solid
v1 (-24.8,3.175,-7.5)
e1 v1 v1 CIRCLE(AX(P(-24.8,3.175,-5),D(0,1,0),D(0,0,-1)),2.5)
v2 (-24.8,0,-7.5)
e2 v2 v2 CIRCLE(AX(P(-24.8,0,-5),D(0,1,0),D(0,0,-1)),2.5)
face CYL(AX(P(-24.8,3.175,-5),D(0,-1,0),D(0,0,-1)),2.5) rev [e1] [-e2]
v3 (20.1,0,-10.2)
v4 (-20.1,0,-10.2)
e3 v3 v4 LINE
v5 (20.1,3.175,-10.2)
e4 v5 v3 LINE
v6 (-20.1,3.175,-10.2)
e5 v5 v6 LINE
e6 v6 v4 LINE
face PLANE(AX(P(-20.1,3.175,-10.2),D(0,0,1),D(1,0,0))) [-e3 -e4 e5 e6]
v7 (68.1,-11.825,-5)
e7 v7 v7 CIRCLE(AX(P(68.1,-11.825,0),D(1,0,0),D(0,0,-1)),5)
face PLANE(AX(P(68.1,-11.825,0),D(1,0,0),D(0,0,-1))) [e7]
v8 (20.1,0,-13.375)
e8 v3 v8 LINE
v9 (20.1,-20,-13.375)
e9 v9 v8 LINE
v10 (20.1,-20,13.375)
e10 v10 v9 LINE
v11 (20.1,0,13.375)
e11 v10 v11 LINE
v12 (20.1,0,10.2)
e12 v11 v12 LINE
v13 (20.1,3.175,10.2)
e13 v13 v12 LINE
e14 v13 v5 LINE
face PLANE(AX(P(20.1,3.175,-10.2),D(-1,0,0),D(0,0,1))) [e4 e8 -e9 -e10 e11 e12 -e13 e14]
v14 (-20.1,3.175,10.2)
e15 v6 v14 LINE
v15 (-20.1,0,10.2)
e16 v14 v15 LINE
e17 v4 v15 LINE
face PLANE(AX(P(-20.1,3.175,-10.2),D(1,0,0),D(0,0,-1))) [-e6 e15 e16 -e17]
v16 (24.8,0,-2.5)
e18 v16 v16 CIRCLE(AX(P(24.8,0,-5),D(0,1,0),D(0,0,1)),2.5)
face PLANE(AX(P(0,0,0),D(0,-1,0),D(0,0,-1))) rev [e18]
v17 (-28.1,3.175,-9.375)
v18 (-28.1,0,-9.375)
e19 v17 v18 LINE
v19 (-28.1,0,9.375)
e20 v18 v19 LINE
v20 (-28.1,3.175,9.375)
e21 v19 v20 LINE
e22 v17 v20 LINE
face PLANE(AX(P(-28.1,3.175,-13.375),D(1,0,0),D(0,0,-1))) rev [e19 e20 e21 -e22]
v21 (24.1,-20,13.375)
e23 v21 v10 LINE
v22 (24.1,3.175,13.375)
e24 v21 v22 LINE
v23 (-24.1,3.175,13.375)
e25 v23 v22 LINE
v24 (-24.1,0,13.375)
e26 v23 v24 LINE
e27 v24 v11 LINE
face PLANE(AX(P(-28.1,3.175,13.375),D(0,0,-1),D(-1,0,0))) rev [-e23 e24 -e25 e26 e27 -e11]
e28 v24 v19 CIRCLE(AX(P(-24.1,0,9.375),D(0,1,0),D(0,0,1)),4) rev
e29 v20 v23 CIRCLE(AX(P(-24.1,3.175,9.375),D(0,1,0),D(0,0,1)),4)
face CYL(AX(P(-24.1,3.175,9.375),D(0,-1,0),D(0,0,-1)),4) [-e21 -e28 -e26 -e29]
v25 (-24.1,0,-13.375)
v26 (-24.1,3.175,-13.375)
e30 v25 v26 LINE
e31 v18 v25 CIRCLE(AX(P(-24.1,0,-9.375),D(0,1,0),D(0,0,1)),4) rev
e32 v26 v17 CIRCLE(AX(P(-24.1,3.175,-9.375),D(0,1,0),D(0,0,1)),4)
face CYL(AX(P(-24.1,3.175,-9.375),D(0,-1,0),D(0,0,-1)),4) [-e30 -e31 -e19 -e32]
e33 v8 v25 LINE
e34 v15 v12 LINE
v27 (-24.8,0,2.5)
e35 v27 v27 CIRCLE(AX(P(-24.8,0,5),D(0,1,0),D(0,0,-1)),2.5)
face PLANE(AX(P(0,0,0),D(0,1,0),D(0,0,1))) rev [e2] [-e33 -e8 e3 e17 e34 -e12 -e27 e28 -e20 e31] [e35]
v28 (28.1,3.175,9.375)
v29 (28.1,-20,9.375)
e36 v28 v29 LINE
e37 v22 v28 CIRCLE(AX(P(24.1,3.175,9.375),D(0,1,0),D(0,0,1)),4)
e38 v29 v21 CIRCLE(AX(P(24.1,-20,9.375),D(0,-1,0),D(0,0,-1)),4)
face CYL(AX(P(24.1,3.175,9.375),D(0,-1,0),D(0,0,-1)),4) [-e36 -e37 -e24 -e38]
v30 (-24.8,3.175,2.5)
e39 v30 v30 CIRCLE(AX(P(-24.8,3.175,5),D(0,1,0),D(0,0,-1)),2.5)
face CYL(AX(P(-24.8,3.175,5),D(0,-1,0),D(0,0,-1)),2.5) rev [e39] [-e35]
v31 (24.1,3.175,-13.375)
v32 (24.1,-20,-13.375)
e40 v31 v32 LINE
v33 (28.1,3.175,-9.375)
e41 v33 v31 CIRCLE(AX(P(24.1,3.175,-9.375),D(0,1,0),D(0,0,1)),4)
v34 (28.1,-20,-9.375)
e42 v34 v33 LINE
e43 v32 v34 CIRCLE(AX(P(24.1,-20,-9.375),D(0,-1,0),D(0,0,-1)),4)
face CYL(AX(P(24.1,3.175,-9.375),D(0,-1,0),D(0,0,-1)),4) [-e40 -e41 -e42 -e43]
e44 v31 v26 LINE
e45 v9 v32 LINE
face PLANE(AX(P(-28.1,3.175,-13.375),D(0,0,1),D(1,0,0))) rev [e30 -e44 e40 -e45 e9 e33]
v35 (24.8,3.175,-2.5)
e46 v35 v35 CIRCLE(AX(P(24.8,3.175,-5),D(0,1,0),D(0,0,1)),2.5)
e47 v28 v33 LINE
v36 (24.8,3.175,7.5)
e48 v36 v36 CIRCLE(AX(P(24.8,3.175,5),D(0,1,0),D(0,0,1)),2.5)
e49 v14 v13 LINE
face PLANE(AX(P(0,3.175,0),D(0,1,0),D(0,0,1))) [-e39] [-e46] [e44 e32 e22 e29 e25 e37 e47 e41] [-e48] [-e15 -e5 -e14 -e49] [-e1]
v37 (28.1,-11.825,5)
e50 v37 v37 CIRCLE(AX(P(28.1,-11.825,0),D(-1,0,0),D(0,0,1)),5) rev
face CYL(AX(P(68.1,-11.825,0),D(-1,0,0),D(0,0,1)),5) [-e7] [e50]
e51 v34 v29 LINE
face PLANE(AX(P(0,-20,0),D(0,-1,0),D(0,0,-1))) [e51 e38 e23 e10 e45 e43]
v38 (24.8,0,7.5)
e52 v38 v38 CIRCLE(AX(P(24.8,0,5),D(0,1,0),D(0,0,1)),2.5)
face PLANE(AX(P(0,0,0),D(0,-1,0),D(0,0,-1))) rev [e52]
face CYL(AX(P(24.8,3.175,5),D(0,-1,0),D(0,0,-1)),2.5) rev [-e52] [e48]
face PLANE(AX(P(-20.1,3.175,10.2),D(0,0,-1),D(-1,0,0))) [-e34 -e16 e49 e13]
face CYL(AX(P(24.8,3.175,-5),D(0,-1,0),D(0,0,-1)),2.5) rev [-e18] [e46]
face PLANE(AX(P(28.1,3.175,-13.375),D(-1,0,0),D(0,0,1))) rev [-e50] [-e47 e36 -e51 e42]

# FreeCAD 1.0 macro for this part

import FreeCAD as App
import Part
import Sketcher
from FreeCAD import Vector


def edges_at(feature, points):
    """Names of the edges that pass closest to the given points."""
    edges = feature.Shape.Edges
    near = lambda p: min(range(len(edges)), key=lambda i: edges[i].distToShape(Part.Vertex(*p))[0])
    return sorted({f"Edge{near(p) + 1}" for p in points})


def add_polygon(sketch, points):
    """Adds a closed chain of lines whose ends are joined by coincident constraints."""
    first, n = sketch.GeometryCount, len(points)
    for a, b in zip(points, points[1:] + points[:1]):
        sketch.addGeometry(Part.LineSegment(App.Vector(*a, 0), App.Vector(*b, 0)), False)
    for i in range(n):
        sketch.addConstraint(Sketcher.Constraint("Coincident", first + i, 2, first + (i + 1) % n, 1))

doc = App.newDocument("Part")
body = doc.addObject("PartDesign::Body", "Body")

# Sketch on XZ plane
sketch1 = doc.addObject("Sketcher::SketchObject", "Sketch")
body.addObject(sketch1)
sketch1.AttachmentSupport = (doc.XZ_Plane, [""])
sketch1.MapMode = "FlatFace"
add_polygon(sketch1, [(-28.1, -13.375), (-28.1, 13.375), (28.1, 13.375), (28.1, -13.375)])  # lines 0-3
sketch1.addGeometry(Part.Circle(Vector(-24.8, 5, 0), Vector(0, 0, 1), 2.5), False)  # 4
sketch1.addGeometry(Part.Circle(Vector(24.8, 5, 0), Vector(0, 0, 1), 2.5), False)  # 5
sketch1.addGeometry(Part.Circle(Vector(-24.8, -5, 0), Vector(0, 0, 1), 2.5), False)  # 6
add_polygon(sketch1, [(20.1, 10.2), (-20.1, 10.2), (-20.1, -10.2), (20.1, -10.2)])  # lines 7-10
sketch1.addGeometry(Part.Circle(Vector(24.8, -5, 0), Vector(0, 0, 1), 2.5), False)  # 11
sketch1.addConstraint(Sketcher.Constraint("Vertical", 0))
sketch1.addConstraint(Sketcher.Constraint("Horizontal", 1))
sketch1.addConstraint(Sketcher.Constraint("Vertical", 2))
sketch1.addConstraint(Sketcher.Constraint("Horizontal", 3))
sketch1.addConstraint(Sketcher.Constraint("Horizontal", 7))
sketch1.addConstraint(Sketcher.Constraint("Vertical", 8))
sketch1.addConstraint(Sketcher.Constraint("Horizontal", 9))
sketch1.addConstraint(Sketcher.Constraint("Vertical", 10))
sketch1.addConstraint(Sketcher.Constraint("Equal", 4, 5))
sketch1.addConstraint(Sketcher.Constraint("Equal", 5, 6))
sketch1.addConstraint(Sketcher.Constraint("Equal", 6, 11))
sketch1.addConstraint(Sketcher.Constraint("Symmetric", 5, 3, 6, 3, -1, 1))
sketch1.addConstraint(Sketcher.Constraint("Symmetric", 4, 3, 11, 3, -1, 1))
sketch1.addConstraint(Sketcher.Constraint("Symmetric", 0, 2, 2, 2, -1, 1))
sketch1.addConstraint(Sketcher.Constraint("Symmetric", 7, 2, 9, 2, -1, 1))
sketch1.addConstraint(Sketcher.Constraint("Symmetric", 4, 3, 5, 3, -2))
sketch1.addConstraint(Sketcher.Constraint("Diameter", 4, 5.0))
sketch1.addConstraint(Sketcher.Constraint("DistanceX", 1, 1, 1, 2, 56.2))
sketch1.addConstraint(Sketcher.Constraint("DistanceX", 7, 2, 7, 1, 40.2))
sketch1.addConstraint(Sketcher.Constraint("DistanceY", 8, 2, 8, 1, 20.4))
sketch1.addConstraint(Sketcher.Constraint("DistanceY", -1, 1, 4, 3, 5.0))
sketch1.addConstraint(Sketcher.Constraint("DistanceY", 0, 1, 0, 2, 26.75))
sketch1.addConstraint(Sketcher.Constraint("DistanceX", 4, 3, -1, 1, 24.8))
pad1 = doc.addObject("PartDesign::Pad", "Pad")
body.addObject(pad1)
pad1.Profile = sketch1
pad1.Length = 3.175
pad1.Reversed = True

# Sketch on XZ plane
sketch2 = doc.addObject("Sketcher::SketchObject", "Sketch001")
body.addObject(sketch2)
sketch2.AttachmentSupport = (doc.XZ_Plane, [""])
sketch2.MapMode = "FlatFace"
add_polygon(sketch2, [(20.1, 13.375), (20.1, -13.375), (28.1, -13.375), (28.1, 13.375)])  # lines 0-3
sketch2.addConstraint(Sketcher.Constraint("Vertical", 0))
sketch2.addConstraint(Sketcher.Constraint("Horizontal", 1))
sketch2.addConstraint(Sketcher.Constraint("Vertical", 2))
sketch2.addConstraint(Sketcher.Constraint("Horizontal", 3))
sketch2.addConstraint(Sketcher.Constraint("DistanceX", 1, 1, 1, 2, 8.0))
sketch2.addConstraint(Sketcher.Constraint("DistanceY", 0, 2, 0, 1, 26.75))
sketch2.addConstraint(Sketcher.Constraint("DistanceX", -1, 1, 0, 2, 20.1))
sketch2.addConstraint(Sketcher.Constraint("DistanceY", 0, 2, -1, 1, 13.375))
pad2 = doc.addObject("PartDesign::Pad", "Pad001")
body.addObject(pad2)
pad2.Profile = sketch2
pad2.Length = 20
doc.recompute()

fillet = doc.addObject("PartDesign::Fillet", "Fillet")
body.addObject(fillet)
fillet.Base = (pad2, edges_at(pad2, [
    (28.1, -8.412, 13.375),
    (-28.1, 1.587, 13.375),
    (-28.1, 1.587, -13.375),
    (28.1, -8.412, -13.375),
]))
fillet.Radius = 4

# Sketch on YZ plane
sketch3 = doc.addObject("Sketcher::SketchObject", "Sketch002")
body.addObject(sketch3)
sketch3.AttachmentSupport = (doc.YZ_Plane, [""])
sketch3.MapMode = "FlatFace"
sketch3.AttachmentOffset = App.Placement(Vector(0, 0, 28.1), App.Rotation())
sketch3.addGeometry(Part.Circle(Vector(-11.825, 0, 0), Vector(0, 0, 1), 5), False)
sketch3.addConstraint(Sketcher.Constraint("PointOnObject", 0, 3, -1))
sketch3.addConstraint(Sketcher.Constraint("Diameter", 0, 10.0))
sketch3.addConstraint(Sketcher.Constraint("DistanceX", 0, 3, -1, 1, 11.825))
pad3 = doc.addObject("PartDesign::Pad", "Pad002")
body.addObject(pad3)
pad3.Profile = sketch3
pad3.Length = 40

doc.recompute()
